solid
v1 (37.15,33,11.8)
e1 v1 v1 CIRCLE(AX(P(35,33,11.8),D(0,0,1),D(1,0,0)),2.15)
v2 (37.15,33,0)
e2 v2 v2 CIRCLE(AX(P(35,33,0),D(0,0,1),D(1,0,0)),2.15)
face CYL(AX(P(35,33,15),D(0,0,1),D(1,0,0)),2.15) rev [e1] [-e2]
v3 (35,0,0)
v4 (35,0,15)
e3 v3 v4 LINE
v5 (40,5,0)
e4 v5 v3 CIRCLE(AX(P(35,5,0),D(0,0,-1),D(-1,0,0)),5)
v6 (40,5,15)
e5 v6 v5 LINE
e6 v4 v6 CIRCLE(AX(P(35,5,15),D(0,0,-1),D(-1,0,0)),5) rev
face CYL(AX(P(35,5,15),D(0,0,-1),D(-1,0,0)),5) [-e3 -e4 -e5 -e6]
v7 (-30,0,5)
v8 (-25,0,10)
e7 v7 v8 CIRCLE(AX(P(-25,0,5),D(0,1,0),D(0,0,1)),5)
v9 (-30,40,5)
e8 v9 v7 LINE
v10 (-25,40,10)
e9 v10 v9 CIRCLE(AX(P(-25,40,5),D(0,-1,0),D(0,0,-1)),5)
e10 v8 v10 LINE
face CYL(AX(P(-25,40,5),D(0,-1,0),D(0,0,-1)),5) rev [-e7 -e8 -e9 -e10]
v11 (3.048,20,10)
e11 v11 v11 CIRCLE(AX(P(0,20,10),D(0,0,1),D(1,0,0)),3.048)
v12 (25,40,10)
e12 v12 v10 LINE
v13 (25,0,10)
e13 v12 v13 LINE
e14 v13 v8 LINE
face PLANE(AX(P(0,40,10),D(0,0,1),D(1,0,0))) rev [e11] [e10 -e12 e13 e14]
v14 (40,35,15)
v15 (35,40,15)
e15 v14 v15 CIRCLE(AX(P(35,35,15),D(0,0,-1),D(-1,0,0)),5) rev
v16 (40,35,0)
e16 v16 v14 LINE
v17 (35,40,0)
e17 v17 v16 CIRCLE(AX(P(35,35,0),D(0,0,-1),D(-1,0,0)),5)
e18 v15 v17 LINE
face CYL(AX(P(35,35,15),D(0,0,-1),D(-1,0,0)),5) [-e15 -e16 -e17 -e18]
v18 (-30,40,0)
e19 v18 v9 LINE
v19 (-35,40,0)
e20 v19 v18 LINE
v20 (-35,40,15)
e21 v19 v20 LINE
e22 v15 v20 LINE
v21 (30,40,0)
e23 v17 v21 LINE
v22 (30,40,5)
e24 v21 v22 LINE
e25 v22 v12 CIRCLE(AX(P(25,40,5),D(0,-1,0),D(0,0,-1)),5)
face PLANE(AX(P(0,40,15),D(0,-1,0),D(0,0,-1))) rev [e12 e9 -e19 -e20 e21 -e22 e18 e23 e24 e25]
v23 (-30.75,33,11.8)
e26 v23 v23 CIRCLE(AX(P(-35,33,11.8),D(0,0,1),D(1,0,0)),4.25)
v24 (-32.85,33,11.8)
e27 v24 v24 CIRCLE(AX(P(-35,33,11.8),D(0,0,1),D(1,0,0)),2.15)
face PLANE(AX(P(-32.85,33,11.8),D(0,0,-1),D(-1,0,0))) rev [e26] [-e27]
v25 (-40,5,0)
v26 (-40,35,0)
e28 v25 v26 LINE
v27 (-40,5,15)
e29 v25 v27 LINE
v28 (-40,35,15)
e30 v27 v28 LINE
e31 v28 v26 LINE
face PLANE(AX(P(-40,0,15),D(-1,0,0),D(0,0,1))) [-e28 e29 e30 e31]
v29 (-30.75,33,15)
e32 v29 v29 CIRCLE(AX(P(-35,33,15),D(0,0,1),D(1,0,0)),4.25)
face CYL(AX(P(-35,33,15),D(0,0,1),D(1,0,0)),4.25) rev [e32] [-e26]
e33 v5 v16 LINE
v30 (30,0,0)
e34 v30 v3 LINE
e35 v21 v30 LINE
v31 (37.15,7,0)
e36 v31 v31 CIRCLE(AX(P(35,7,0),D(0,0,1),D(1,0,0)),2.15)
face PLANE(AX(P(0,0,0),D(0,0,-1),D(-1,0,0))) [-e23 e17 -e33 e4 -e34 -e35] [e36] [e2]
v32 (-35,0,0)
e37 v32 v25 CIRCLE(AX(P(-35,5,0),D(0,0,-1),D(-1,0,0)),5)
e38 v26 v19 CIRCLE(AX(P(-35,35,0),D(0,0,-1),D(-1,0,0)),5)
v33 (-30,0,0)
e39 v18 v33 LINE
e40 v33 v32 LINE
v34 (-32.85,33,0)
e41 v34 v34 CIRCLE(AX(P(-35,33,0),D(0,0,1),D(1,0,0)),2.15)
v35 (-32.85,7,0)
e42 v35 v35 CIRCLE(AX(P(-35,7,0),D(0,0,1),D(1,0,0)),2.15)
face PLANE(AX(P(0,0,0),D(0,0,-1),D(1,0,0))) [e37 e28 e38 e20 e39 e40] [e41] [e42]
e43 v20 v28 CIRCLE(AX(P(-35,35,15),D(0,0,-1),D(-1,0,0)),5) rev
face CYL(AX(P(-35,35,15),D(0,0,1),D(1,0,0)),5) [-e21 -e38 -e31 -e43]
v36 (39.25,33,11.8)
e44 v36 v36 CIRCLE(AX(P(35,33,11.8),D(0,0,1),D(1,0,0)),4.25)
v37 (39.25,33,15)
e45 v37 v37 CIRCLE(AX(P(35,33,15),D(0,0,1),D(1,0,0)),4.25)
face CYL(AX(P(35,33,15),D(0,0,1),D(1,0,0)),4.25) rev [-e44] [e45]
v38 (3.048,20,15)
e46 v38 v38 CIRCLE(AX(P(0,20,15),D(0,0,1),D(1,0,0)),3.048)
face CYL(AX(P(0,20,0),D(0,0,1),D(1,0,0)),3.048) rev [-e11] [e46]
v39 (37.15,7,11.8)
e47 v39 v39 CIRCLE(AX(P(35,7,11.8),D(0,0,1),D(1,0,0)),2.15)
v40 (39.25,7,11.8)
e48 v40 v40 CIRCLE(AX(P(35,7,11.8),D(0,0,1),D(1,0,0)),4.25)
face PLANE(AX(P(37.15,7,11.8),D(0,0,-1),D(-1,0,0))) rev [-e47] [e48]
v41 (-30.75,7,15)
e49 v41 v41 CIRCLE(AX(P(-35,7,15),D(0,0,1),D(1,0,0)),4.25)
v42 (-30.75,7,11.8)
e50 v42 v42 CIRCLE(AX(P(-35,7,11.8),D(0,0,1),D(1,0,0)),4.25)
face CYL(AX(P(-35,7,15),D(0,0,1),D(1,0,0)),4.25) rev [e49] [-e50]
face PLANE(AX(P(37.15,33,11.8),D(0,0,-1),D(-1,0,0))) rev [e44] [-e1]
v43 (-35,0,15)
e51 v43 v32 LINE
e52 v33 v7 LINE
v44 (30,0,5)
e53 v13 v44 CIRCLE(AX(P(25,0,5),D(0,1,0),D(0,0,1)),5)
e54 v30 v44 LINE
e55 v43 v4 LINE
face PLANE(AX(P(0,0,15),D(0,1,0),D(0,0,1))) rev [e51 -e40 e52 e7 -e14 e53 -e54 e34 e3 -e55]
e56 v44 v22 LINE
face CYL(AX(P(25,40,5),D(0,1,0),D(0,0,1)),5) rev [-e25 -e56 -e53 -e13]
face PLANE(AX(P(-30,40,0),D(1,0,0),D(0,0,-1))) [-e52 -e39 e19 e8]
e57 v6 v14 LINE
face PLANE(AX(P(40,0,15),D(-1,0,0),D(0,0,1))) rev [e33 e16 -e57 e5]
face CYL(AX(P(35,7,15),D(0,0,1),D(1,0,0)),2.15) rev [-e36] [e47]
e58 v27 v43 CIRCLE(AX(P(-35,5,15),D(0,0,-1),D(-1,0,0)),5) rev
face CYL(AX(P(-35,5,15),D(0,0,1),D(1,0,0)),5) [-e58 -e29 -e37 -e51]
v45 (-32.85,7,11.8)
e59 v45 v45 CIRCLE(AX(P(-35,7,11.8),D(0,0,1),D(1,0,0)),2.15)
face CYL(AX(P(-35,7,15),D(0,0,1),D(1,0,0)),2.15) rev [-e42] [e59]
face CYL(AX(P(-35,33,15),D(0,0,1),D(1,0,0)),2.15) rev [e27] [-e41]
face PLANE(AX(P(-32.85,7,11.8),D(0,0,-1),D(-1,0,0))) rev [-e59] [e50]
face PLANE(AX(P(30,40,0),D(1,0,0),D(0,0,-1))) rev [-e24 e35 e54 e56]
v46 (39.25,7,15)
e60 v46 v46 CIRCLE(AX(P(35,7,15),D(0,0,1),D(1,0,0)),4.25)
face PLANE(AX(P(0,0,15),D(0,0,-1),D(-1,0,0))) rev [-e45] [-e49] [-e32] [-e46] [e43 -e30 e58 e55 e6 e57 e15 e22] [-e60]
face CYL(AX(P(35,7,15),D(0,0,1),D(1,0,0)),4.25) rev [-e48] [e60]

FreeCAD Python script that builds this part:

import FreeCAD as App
import Part
import Sketcher


def edges_at(feature, points):
    """Names of the edges that pass closest to the given points."""
    edges = feature.Shape.Edges
    near = lambda p: min(range(len(edges)), key=lambda i: edges[i].distToShape(Part.Vertex(*p))[0])
    return sorted({f"Edge{near(p) + 1}" for p in points})


def add_polygon(sketch, points):
    """Adds a closed chain of lines whose ends are joined by coincident constraints."""
    first, n = sketch.GeometryCount, len(points)
    for a, b in zip(points, points[1:] + points[:1]):
        sketch.addGeometry(Part.LineSegment(App.Vector(*a, 0), App.Vector(*b, 0)), False)
    for i in range(n):
        sketch.addConstraint(Sketcher.Constraint("Coincident", first + i, 2, first + (i + 1) % n, 1))

doc = App.newDocument("Part")
params = doc.addObject("Spreadsheet::Sheet", "Params")
for row, (alias, value) in enumerate([
    ("sketch1_width", "40 mm"),
    ("pad1_length", "15 mm"),
    ("sketch2_width", "30 mm"),
    ("sketch2_height", "10 mm"),
    ("fillet_radius", "5 mm"),
    ("fillet2_radius", "5 mm"),
    ("sketch3_diameter", "4.3 mm"),
    ("hole_diameter", "4.3 mm"),
    ("hole_cbore_diameter", "8.5 mm"),
    ("hole_cbore_depth", "3.2 mm"),
    ("fillet3_radius", "5 mm"),
    ("fillet4_radius", "5 mm"),
], start=1):
    params.set(f"A{row}", alias)
    params.set(f"B{row}", "=" + value)
    params.setAlias(f"B{row}", alias)

body = doc.addObject("PartDesign::Body", "Body")

# Sketch on XY plane
sketch1 = doc.addObject("Sketcher::SketchObject", "Sketch")
body.addObject(sketch1)
sketch1.AttachmentSupport = (doc.XY_Plane, [""])
sketch1.MapMode = "FlatFace"
add_polygon(sketch1, [(0, 40), (0, 0), (40, 0), (40, 40)])  # lines 0-3
sketch1.addConstraint(Sketcher.Constraint("Vertical", 0))
sketch1.addConstraint(Sketcher.Constraint("Horizontal", 1))
sketch1.addConstraint(Sketcher.Constraint("Vertical", 2))
sketch1.addConstraint(Sketcher.Constraint("Horizontal", 3))
sketch1.addConstraint(Sketcher.Constraint("Coincident", 0, 2, -1, 1))
sketch1.addConstraint(Sketcher.Constraint("Equal", 3, 0))
sketch1.addConstraint(Sketcher.Constraint("DistanceX", 1, 1, 1, 2, 40.0))
sketch1.setExpression("Constraints[10]", "Params.sketch1_width")
pad1 = doc.addObject("PartDesign::Pad", "Pad")
body.addObject(pad1)
pad1.Profile = sketch1
pad1.setExpression("Length", "Params.pad1_length")

# Sketch on XZ plane
sketch2 = doc.addObject("Sketcher::SketchObject", "Sketch001")
body.addObject(sketch2)
sketch2.AttachmentSupport = (doc.XZ_Plane, [""])
sketch2.MapMode = "FlatFace"
add_polygon(sketch2, [(0, 10), (0, 0), (30, 0), (30, 10)])  # lines 0-3
sketch2.addConstraint(Sketcher.Constraint("Vertical", 0))
sketch2.addConstraint(Sketcher.Constraint("Horizontal", 1))
sketch2.addConstraint(Sketcher.Constraint("Vertical", 2))
sketch2.addConstraint(Sketcher.Constraint("Horizontal", 3))
sketch2.addConstraint(Sketcher.Constraint("Coincident", 0, 2, -1, 1))
sketch2.addConstraint(Sketcher.Constraint("DistanceX", 1, 1, 1, 2, 30.0))
sketch2.addConstraint(Sketcher.Constraint("DistanceY", 0, 2, 0, 1, 10.0))
sketch2.setExpression("Constraints[9]", "Params.sketch2_width")
sketch2.setExpression("Constraints[10]", "Params.sketch2_height")
pocket1 = doc.addObject("PartDesign::Pocket", "Pocket")
body.addObject(pocket1)
pocket1.Profile = sketch2
pocket1.Type = "ThroughAll"
doc.recompute()

fillet = doc.addObject("PartDesign::Fillet", "Fillet")
body.addObject(fillet)
fillet.Base = (pocket1, edges_at(pocket1, [(30, 20, 10)]))
fillet.setExpression("Radius", "Params.fillet_radius")
doc.recompute()

fillet2 = doc.addObject("PartDesign::Fillet", "Fillet001")
body.addObject(fillet2)
fillet2.Base = (fillet, edges_at(fillet, [(40, 40, 7.5), (40, 0, 7.5)]))
fillet2.setExpression("Radius", "Params.fillet2_radius")

# Sketch on XY plane
sketch3 = doc.addObject("Sketcher::SketchObject", "Sketch002")
body.addObject(sketch3)
sketch3.AttachmentSupport = (doc.XY_Plane, [""])
sketch3.MapMode = "FlatFace"
sketch3.AttachmentOffset = App.Placement(App.Vector(0, 0, 15), App.Rotation())
sketch3.addGeometry(Part.Circle(App.Vector(35, 33, 0), App.Vector(0, 0, 1), 2.1), False)
sketch3.addGeometry(Part.Circle(App.Vector(35, 7, 0), App.Vector(0, 0, 1), 2.1), False)
sketch3.addConstraint(Sketcher.Constraint("Equal", 0, 1))
sketch3.addConstraint(Sketcher.Constraint("Vertical", 0, 3, 1, 3))
sketch3.addConstraint(Sketcher.Constraint("Diameter", 0, 4.3))
sketch3.addConstraint(Sketcher.Constraint("DistanceX", -1, 1, 0, 3, 35.0))
sketch3.addConstraint(Sketcher.Constraint("DistanceY", -1, 1, 0, 3, 33.0))
sketch3.addConstraint(Sketcher.Constraint("DistanceY", -1, 1, 1, 3, 7.0))
sketch3.setExpression("Constraints[2]", "Params.sketch3_diameter")
doc.recompute()
hole = doc.addObject("PartDesign::Hole", "Hole")
body.addObject(hole)
hole.Profile = sketch3
hole.ThreadType = "None"
hole.setExpression("Diameter", "Params.hole_diameter")
hole.DepthType = "ThroughAll"
hole.HoleCutType = "Counterbore"
hole.setExpression("HoleCutDiameter", "Params.hole_cbore_diameter")
hole.setExpression("HoleCutDepth", "Params.hole_cbore_depth")
doc.recompute()

mirrored = doc.addObject("PartDesign::Mirrored", "Mirrored")
body.addObject(mirrored)
mirrored.Originals = [pad1, pocket1, hole]
mirrored.MirrorPlane = (doc.YZ_Plane, [""])
body.Tip = mirrored
doc.recompute()

fillet3 = doc.addObject("PartDesign::Fillet", "Fillet002")
body.addObject(fillet3)
fillet3.Base = (mirrored, edges_at(mirrored, [(-30, 20, 10)]))
fillet3.setExpression("Radius", "Params.fillet3_radius")
doc.recompute()

fillet4 = doc.addObject("PartDesign::Fillet", "Fillet003")
body.addObject(fillet4)
fillet4.Base = (fillet3, edges_at(fillet3, [(-40, 40, 7.5), (-40, 0, 7.5)]))
fillet4.setExpression("Radius", "Params.fillet4_radius")

# Sketch on XY plane
sketch4 = doc.addObject("Sketcher::SketchObject", "Sketch003")
body.addObject(sketch4)
sketch4.AttachmentSupport = (doc.XY_Plane, [""])
sketch4.MapMode = "FlatFace"
sketch4.AttachmentOffset = App.Placement(App.Vector(0, 0, 15), App.Rotation())
sketch4.addGeometry(Part.Circle(App.Vector(0, 20, 0), App.Vector(0, 0, 1), 3), False)
sketch4.addConstraint(Sketcher.Constraint("PointOnObject", 0, 3, -2))
sketch4.addConstraint(Sketcher.Constraint("Diameter", 0, 6.096))
sketch4.addConstraint(Sketcher.Constraint("DistanceY", -1, 1, 0, 3, 20.0))
pocket2 = doc.addObject("PartDesign::Pocket", "Pocket001")
body.addObject(pocket2)
pocket2.Profile = sketch4
pocket2.Type = "ThroughAll"

doc.recompute()
